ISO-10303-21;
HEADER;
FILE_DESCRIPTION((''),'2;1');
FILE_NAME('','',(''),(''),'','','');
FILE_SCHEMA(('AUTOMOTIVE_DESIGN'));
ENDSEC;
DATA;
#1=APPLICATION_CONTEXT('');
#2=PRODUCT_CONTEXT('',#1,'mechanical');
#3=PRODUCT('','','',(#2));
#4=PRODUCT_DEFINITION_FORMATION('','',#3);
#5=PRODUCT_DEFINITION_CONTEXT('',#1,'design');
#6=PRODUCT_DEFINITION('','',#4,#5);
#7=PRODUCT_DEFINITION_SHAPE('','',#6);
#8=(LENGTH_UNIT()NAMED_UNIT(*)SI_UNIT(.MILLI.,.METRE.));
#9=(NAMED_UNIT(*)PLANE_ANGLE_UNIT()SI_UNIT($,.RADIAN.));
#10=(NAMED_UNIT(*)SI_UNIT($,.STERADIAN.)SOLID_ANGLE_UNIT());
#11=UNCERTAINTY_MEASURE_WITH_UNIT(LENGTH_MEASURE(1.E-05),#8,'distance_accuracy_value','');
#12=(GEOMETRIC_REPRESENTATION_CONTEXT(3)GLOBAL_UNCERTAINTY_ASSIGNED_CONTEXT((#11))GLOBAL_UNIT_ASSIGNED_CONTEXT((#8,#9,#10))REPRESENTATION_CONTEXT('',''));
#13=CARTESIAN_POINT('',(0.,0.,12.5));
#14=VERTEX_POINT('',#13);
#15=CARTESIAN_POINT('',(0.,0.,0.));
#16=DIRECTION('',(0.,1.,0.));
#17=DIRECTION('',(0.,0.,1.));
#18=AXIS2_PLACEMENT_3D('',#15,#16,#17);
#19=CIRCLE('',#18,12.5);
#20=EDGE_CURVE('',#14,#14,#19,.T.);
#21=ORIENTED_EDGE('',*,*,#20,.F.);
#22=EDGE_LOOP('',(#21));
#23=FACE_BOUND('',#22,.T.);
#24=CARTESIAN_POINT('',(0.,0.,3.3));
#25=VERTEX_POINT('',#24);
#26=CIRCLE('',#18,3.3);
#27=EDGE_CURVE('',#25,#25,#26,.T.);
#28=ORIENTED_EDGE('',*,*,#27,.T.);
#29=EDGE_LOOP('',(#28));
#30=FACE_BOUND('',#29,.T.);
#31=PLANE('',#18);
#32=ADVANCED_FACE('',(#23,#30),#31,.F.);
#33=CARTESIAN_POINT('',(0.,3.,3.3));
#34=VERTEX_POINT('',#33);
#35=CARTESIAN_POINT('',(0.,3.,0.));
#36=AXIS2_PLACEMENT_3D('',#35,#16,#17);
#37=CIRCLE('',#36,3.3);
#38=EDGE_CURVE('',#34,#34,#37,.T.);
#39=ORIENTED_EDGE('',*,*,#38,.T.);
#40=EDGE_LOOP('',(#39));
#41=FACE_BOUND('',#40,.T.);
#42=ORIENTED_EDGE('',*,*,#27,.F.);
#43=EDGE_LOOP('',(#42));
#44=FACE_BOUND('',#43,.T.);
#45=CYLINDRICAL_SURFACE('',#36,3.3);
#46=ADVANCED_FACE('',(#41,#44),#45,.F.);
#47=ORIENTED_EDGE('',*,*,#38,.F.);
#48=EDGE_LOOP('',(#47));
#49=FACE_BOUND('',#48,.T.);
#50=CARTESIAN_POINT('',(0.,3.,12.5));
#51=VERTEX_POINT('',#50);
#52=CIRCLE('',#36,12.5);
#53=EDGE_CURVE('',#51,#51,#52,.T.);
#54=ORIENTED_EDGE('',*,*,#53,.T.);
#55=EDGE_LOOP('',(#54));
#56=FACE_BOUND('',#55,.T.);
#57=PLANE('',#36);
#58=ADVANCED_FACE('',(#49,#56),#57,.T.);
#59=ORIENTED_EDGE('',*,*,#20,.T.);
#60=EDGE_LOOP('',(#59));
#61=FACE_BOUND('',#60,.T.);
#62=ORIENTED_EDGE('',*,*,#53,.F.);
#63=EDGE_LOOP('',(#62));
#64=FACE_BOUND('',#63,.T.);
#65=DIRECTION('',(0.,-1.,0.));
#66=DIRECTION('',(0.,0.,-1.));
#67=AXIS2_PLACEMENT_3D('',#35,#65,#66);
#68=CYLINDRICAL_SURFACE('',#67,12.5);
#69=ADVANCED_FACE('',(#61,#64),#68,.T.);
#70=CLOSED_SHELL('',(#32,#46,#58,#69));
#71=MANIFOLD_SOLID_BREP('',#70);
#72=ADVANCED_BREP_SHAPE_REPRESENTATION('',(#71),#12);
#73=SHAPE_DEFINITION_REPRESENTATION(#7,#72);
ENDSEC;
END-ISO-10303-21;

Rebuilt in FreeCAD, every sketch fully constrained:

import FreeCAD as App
import Part
import Sketcher
from FreeCAD import Vector
Q = App.Units.Quantity

doc = App.newDocument("Part")
body = doc.addObject("PartDesign::Body", "Body")

# Sketch on XZ plane
sketch1 = body.newObject("Sketcher::SketchObject", "Sketch")
sketch1.AttachmentSupport = (doc.getObject("XZ_Plane"), [""])
sketch1.MapMode = "FlatFace"
sketch1.addGeometry(Part.Circle(Vector(0, 0, 0), Vector(0, 0, 1), 12), False)
sketch1.addConstraint([
    Sketcher.Constraint("Coincident", 0, 3, -1, 1),
    Sketcher.Constraint("Diameter", 0, Q("25 mm")),
])
pad1 = body.newObject("PartDesign::Pad", "Pad")
pad1.Profile = sketch1
pad1.Length = 3
pad1.Reversed = True

# Sketch on XZ plane
sketch2 = body.newObject("Sketcher::SketchObject", "Sketch001")
sketch2.AttachmentSupport = (doc.getObject("XZ_Plane"), [""])
sketch2.MapMode = "FlatFace"
sketch2.AttachmentOffset = App.Placement(Vector(0, 0, -3), App.Rotation())
sketch2.addGeometry(Part.Circle(Vector(0, 0, 0), Vector(0, 0, 1), 3.3), False)
sketch2.addConstraint([
    Sketcher.Constraint("Coincident", 0, 3, -1, 1),
    Sketcher.Constraint("Diameter", 0, Q("6.6 mm")),
])
doc.recompute()
hole = body.newObject("PartDesign::Hole", "Hole")
hole.Profile = sketch2
hole.ThreadType = "None"
hole.Diameter = 6.6
hole.DepthType = "ThroughAll"
hole.Reversed = True

doc.recompute()
